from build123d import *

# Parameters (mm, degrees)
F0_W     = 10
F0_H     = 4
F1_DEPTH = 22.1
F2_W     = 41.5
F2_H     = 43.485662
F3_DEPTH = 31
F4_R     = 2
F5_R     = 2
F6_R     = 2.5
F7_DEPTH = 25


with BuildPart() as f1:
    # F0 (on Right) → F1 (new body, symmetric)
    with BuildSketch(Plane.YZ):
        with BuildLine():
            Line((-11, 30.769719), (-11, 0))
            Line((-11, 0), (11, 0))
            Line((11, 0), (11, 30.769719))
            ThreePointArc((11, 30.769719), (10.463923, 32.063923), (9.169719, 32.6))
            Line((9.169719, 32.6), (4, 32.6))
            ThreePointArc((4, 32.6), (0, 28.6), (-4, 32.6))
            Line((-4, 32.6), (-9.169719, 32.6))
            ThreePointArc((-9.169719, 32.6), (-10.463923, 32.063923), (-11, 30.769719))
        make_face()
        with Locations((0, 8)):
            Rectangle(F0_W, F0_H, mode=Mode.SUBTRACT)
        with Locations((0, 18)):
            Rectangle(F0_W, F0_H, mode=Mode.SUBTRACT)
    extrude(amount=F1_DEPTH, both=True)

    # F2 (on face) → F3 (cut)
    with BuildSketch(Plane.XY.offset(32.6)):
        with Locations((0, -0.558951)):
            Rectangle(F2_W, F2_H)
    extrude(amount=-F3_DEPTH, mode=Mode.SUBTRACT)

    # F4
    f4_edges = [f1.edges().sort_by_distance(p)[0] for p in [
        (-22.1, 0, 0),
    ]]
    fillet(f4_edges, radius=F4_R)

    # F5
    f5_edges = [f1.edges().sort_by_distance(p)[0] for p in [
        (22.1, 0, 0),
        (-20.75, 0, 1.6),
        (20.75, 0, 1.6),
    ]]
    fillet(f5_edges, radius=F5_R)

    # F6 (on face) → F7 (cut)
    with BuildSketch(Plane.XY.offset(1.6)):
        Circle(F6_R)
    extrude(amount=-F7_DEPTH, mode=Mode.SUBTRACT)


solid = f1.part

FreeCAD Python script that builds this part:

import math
import FreeCAD as App
import Part
import Sketcher


def edges_at(feature, points):
    """Names of the edges that pass closest to the given points."""
    edges = feature.Shape.Edges
    near = lambda p: min(range(len(edges)), key=lambda i: edges[i].distToShape(Part.Vertex(*p))[0])
    return sorted({f"Edge{near(p) + 1}" for p in points})


def add_polygon(sketch, points):
    """Adds a closed chain of lines whose ends are joined by coincident constraints."""
    first, n = sketch.GeometryCount, len(points)
    for a, b in zip(points, points[1:] + points[:1]):
        sketch.addGeometry(Part.LineSegment(App.Vector(*a, 0), App.Vector(*b, 0)), False)
    for i in range(n):
        sketch.addConstraint(Sketcher.Constraint("Coincident", first + i, 2, first + (i + 1) % n, 1))

doc = App.newDocument("Part")
body = doc.addObject("PartDesign::Body", "Body")

# Sketch on YZ plane
sketch1 = body.newObject("Sketcher::SketchObject", "Sketch")
sketch1.AttachmentSupport = (doc.getObject("YZ_Plane"), [""])
sketch1.MapMode = "FlatFace"
sketch1.addGeometry(Part.LineSegment(App.Vector(-11, 30.8, 0), App.Vector(-11, 0, 0)), False)  # 0
sketch1.addGeometry(Part.LineSegment(App.Vector(-11, 0, 0), App.Vector(11, 0, 0)), False)  # 1
sketch1.addGeometry(Part.LineSegment(App.Vector(11, 0, 0), App.Vector(11, 30.8, 0)), False)  # 2
sketch1.addGeometry(Part.ArcOfCircle(Part.Circle(App.Vector(9.2, 30.8, 0), App.Vector(0, 0, 1), 1.8), math.radians(0), math.radians(90)), False)  # 3
sketch1.addGeometry(Part.LineSegment(App.Vector(9.2, 32.6, 0), App.Vector(4, 32.6, 0)), False)  # 4
sketch1.addGeometry(Part.ArcOfCircle(Part.Circle(App.Vector(0, 32.6, 0), App.Vector(0, 0, 1), 4), math.radians(180), math.radians(360)), False)  # 5
sketch1.addGeometry(Part.LineSegment(App.Vector(-4, 32.6, 0), App.Vector(-9.2, 32.6, 0)), False)  # 6
sketch1.addGeometry(Part.ArcOfCircle(Part.Circle(App.Vector(-9.2, 30.8, 0), App.Vector(0, 0, 1), 1.8), math.radians(90), math.radians(180)), False)  # 7
add_polygon(sketch1, [(5, 6), (-5, 6), (-5, 10), (5, 10)])  # lines 8-11
add_polygon(sketch1, [(5, 16), (-5, 16), (-5, 20), (5, 20)])  # lines 12-15
sketch1.addConstraint([
    Sketcher.Constraint("Coincident", 0, 2, 1, 1),
    Sketcher.Constraint("Coincident", 1, 2, 2, 1),
    Sketcher.Constraint("Tangent", 2, 2, 3, 1),
    Sketcher.Constraint("Tangent", 3, 2, 4, 1),
    Sketcher.Constraint("Coincident", 4, 2, 5, 2),
    Sketcher.Constraint("Coincident", 5, 1, 6, 1),
    Sketcher.Constraint("Tangent", 6, 2, 7, 1),
    Sketcher.Constraint("Tangent", 7, 2, 0, 1),
    Sketcher.Constraint("Vertical", 0),
    Sketcher.Constraint("Horizontal", 1),
    Sketcher.Constraint("Vertical", 2),
    Sketcher.Constraint("Horizontal", 4),
    Sketcher.Constraint("Horizontal", 6),
    Sketcher.Constraint("Horizontal", 8),
    Sketcher.Constraint("Vertical", 9),
    Sketcher.Constraint("Horizontal", 10),
    Sketcher.Constraint("Vertical", 11),
    Sketcher.Constraint("Horizontal", 12),
    Sketcher.Constraint("Vertical", 13),
    Sketcher.Constraint("Horizontal", 14),
    Sketcher.Constraint("Vertical", 15),
    Sketcher.Constraint("Equal", 3, 7),
    Sketcher.Constraint("Symmetric", 0, 2, 1, 2, -1, 1),
    Sketcher.Constraint("Symmetric", 4, 2, 5, 1, -2),
    Sketcher.Constraint("Horizontal", 5, 3, 3, 2),
    Sketcher.Constraint("Vertical", 9, 2, 12, 2),
    Sketcher.Constraint("Vertical", 11, 2, 14, 2),
    Sketcher.Constraint("Equal", 11, 13),
    Sketcher.Constraint("Radius", 5, 4.0),
    Sketcher.Constraint("DistanceX", 1, 1, 1, 2, 22.0),
    Sketcher.Constraint("DistanceX", 8, 2, 8, 1, 10.0),
    Sketcher.Constraint("DistanceY", 9, 1, 9, 2, 4.0),
    Sketcher.Constraint("DistanceX", 8, 2, -1, 1, 5.0),
    Sketcher.Constraint("DistanceY", -1, 1, 8, 2, 6.0),
    Sketcher.Constraint("DistanceY", -1, 1, 12, 2, 16.0),
    Sketcher.Constraint("DistanceY", -1, 1, 5, 3, 32.6),
    Sketcher.Constraint("Radius", 3, 1.830281),
])
pad1 = body.newObject("PartDesign::Pad", "Pad")
pad1.Profile = sketch1
pad1.Length = 44.2
pad1.Midplane = True

# Sketch on XY plane
sketch2 = body.newObject("Sketcher::SketchObject", "Sketch001")
sketch2.AttachmentSupport = (doc.getObject("XY_Plane"), [""])
sketch2.MapMode = "FlatFace"
sketch2.AttachmentOffset = App.Placement(App.Vector(0, 0, 32.6), App.Rotation())
add_polygon(sketch2, [(-21, 21), (-21, -22), (21, -22), (21, 21)])  # lines 0-3
sketch2.addConstraint([
    Sketcher.Constraint("Vertical", 0),
    Sketcher.Constraint("Horizontal", 1),
    Sketcher.Constraint("Vertical", 2),
    Sketcher.Constraint("Horizontal", 3),
    Sketcher.Constraint("DistanceX", 1, 1, 1, 2, 41.5),
    Sketcher.Constraint("DistanceX", 0, 2, -1, 1, 20.75),
    Sketcher.Constraint("DistanceY", 0, 2, 0, 1, 43.485662),
    Sketcher.Constraint("DistanceY", 0, 2, -1, 1, 22.301782),
])
pocket1 = body.newObject("PartDesign::Pocket", "Pocket")
pocket1.Profile = sketch2
pocket1.Length = 31
doc.recompute()

fillet = body.newObject("PartDesign::Fillet", "Fillet")
fillet.Base = (pocket1, edges_at(pocket1, [(-22.1, 0, 0)]))
fillet.Radius = 2
doc.recompute()

fillet2 = body.newObject("PartDesign::Fillet", "Fillet001")
fillet2.Base = (fillet, edges_at(fillet, [(22.1, 0, 0), (-20.75, 0, 1.6), (20.75, 0, 1.6)]))
fillet2.Radius = 2

# Sketch on XY plane
sketch3 = body.newObject("Sketcher::SketchObject", "Sketch002")
sketch3.AttachmentSupport = (doc.getObject("XY_Plane"), [""])
sketch3.MapMode = "FlatFace"
sketch3.AttachmentOffset = App.Placement(App.Vector(0, 0, 1.6), App.Rotation())
sketch3.addGeometry(Part.Circle(App.Vector(0, 0, 0), App.Vector(0, 0, 1), 2.5), False)
sketch3.addConstraint([
    Sketcher.Constraint("Coincident", 0, 3, -1, 1),
    Sketcher.Constraint("Diameter", 0, 5.0),
])
pocket2 = body.newObject("PartDesign::Pocket", "Pocket001")
pocket2.Profile = sketch3
pocket2.Length = 25

doc.recompute()
